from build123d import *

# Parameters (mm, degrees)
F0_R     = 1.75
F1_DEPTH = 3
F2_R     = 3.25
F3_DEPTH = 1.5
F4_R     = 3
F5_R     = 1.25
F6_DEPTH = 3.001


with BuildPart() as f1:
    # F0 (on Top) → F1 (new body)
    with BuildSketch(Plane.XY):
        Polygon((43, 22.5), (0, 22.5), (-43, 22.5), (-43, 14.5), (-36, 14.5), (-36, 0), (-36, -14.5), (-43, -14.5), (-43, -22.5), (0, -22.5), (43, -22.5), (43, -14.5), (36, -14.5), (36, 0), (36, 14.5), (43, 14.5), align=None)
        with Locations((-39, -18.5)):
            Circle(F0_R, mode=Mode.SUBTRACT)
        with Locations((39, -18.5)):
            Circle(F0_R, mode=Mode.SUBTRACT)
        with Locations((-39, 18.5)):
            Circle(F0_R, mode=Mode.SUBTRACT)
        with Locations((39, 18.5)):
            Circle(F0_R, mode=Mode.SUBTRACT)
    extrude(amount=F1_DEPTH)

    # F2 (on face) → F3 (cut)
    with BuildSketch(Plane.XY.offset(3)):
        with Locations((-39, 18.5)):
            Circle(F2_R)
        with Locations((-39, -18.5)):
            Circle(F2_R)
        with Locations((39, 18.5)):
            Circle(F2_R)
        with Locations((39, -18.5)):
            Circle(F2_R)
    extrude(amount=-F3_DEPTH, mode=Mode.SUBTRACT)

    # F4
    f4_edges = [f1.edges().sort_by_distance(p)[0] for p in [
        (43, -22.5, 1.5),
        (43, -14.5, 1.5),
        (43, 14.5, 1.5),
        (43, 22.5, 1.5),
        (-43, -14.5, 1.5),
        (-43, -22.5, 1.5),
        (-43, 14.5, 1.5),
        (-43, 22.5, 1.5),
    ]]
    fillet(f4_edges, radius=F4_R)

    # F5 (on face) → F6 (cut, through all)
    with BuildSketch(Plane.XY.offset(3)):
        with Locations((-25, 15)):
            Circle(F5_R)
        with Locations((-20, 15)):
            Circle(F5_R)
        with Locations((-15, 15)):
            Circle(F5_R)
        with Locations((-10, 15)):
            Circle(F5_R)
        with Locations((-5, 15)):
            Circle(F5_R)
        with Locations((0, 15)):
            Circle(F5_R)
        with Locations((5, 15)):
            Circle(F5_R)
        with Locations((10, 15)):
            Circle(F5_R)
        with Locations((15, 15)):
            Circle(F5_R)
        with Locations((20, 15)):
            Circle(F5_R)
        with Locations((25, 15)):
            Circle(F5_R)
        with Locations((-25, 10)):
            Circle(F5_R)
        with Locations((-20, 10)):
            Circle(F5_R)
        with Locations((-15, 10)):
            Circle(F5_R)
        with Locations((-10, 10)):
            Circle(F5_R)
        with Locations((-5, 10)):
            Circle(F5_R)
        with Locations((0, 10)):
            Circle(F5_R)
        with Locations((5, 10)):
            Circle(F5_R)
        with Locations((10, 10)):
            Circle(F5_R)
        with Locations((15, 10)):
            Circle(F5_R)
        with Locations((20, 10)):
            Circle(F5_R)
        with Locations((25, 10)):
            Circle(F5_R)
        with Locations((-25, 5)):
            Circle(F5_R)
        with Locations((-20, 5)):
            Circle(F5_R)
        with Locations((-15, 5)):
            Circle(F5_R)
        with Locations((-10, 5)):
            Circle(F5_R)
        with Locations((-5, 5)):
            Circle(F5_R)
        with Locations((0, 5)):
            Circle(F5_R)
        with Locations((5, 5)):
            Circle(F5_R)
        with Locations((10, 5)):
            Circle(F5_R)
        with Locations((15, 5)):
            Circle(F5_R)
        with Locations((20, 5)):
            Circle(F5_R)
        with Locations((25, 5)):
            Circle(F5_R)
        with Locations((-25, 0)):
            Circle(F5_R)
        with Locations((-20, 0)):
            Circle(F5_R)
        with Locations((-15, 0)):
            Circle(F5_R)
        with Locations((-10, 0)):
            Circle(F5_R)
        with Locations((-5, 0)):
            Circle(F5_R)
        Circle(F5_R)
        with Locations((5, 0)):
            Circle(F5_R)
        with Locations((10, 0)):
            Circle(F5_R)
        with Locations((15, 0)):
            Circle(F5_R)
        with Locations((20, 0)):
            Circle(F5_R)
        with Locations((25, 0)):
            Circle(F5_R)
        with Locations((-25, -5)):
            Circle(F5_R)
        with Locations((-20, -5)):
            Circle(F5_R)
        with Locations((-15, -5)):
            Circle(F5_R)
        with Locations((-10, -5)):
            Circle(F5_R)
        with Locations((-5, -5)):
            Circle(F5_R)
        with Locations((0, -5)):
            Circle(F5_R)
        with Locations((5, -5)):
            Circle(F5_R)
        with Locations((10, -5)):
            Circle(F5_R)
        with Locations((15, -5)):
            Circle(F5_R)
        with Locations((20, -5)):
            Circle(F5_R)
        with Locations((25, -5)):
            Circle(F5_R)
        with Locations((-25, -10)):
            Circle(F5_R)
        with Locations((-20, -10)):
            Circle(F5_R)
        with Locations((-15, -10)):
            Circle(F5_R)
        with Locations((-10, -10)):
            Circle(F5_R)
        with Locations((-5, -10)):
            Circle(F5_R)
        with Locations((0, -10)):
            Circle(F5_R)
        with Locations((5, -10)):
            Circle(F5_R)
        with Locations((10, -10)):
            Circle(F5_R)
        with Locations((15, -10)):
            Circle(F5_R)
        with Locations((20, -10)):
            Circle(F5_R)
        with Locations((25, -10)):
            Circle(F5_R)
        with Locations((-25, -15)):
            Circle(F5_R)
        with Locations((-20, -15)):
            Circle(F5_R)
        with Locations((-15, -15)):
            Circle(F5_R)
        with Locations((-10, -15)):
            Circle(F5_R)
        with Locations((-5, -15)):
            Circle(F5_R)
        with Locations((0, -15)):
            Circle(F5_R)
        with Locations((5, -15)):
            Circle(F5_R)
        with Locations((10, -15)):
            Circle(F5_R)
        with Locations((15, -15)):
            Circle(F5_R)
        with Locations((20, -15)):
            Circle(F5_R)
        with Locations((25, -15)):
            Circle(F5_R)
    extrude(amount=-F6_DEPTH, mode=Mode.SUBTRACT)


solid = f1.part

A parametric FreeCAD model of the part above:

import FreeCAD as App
import Part
import Sketcher


def edges_at(feature, points):
    """Names of the edges that pass closest to the given points."""
    edges = feature.Shape.Edges
    near = lambda p: min(range(len(edges)), key=lambda i: edges[i].distToShape(Part.Vertex(*p))[0])
    return sorted({f"Edge{near(p) + 1}" for p in points})


def add_polygon(sketch, points):
    """Adds a closed chain of lines whose ends are joined by coincident constraints."""
    first, n = sketch.GeometryCount, len(points)
    for a, b in zip(points, points[1:] + points[:1]):
        sketch.addGeometry(Part.LineSegment(App.Vector(*a, 0), App.Vector(*b, 0)), False)
    for i in range(n):
        sketch.addConstraint(Sketcher.Constraint("Coincident", first + i, 2, first + (i + 1) % n, 1))

doc = App.newDocument("Part")
params = doc.addObject("Spreadsheet::Sheet", "Params")
for row, (alias, value) in enumerate([
    ("sketch1_diameter", "3.5 mm"),
    ("sketch1_width", "86 mm"),
    ("sketch1_width2", "7 mm"),
    ("sketch1_height", "8 mm"),
    ("sketch1_height2", "29 mm"),
    ("pad1_length", "3 mm"),
    ("sketch2_diameter", "6.5 mm"),
    ("pocket1_length", "1.5 mm"),
    ("fillet_radius", "3 mm"),
    ("sketch3_diameter", "2.5 mm"),
], start=1):
    params.set(f"A{row}", alias)
    params.set(f"B{row}", "=" + value)
    params.setAlias(f"B{row}", alias)

body = doc.addObject("PartDesign::Body", "Body")

sketch1 = body.newObject("Sketcher::SketchObject", "Sketch")
sketch1.AttachmentSupport = (doc.getObject("XY_Plane"), [""])
sketch1.MapMode = "FlatFace"
add_polygon(sketch1, [(43, 22.5), (-43, 22.5), (-43, 14.5), (-36, 14.5), (-36, -14.5), (-43, -14.5), (-43, -22.5), (43, -22.5), (43, -14.5), (36, -14.5), (36, 14.5), (43, 14.5)])
sketch1.addGeometry(Part.Circle(App.Vector(-39, -18.5, 0), App.Vector(0, 0, 1), 1.75), False)
sketch1.addGeometry(Part.Circle(App.Vector(39, -18.5, 0), App.Vector(0, 0, 1), 1.75), False)
sketch1.addGeometry(Part.Circle(App.Vector(-39, 18.5, 0), App.Vector(0, 0, 1), 1.75), False)
sketch1.addGeometry(Part.Circle(App.Vector(39, 18.5, 0), App.Vector(0, 0, 1), 1.75), False)
sketch1.addConstraint(Sketcher.Constraint("Horizontal", 0))
sketch1.addConstraint(Sketcher.Constraint("Vertical", 1))
sketch1.addConstraint(Sketcher.Constraint("Horizontal", 2))
sketch1.addConstraint(Sketcher.Constraint("Vertical", 3))
sketch1.addConstraint(Sketcher.Constraint("Horizontal", 4))
sketch1.addConstraint(Sketcher.Constraint("Vertical", 5))
sketch1.addConstraint(Sketcher.Constraint("Horizontal", 6))
sketch1.addConstraint(Sketcher.Constraint("Vertical", 7))
sketch1.addConstraint(Sketcher.Constraint("Horizontal", 8))
sketch1.addConstraint(Sketcher.Constraint("Vertical", 9))
sketch1.addConstraint(Sketcher.Constraint("Horizontal", 10))
sketch1.addConstraint(Sketcher.Constraint("Vertical", 11))
sketch1.addConstraint(Sketcher.Constraint("Equal", 12, 13))
sketch1.addConstraint(Sketcher.Constraint("Equal", 13, 14))
sketch1.addConstraint(Sketcher.Constraint("Equal", 14, 15))
sketch1.addConstraint(Sketcher.Constraint("Symmetric", 13, 3, 14, 3, -1, 1))
sketch1.addConstraint(Sketcher.Constraint("Symmetric", 12, 3, 15, 3, -1, 1))
sketch1.addConstraint(Sketcher.Constraint("Symmetric", 0, 2, 6, 2, -1, 1))
sketch1.addConstraint(Sketcher.Constraint("Symmetric", 2, 2, 8, 2, -1, 1))
sketch1.addConstraint(Sketcher.Constraint("Symmetric", 4, 2, 10, 2, -1, 1))
sketch1.addConstraint(Sketcher.Constraint("Symmetric", 12, 3, 13, 3, -2))
sketch1.addConstraint(Sketcher.Constraint("Symmetric", 4, 2, 7, 2, -2))
sketch1.addConstraint(Sketcher.Constraint("Diameter", 12, 3.5))
sketch1.addConstraint(Sketcher.Constraint("DistanceX", 0, 2, 0, 1, 86.0))
sketch1.addConstraint(Sketcher.Constraint("DistanceX", 2, 1, 2, 2, 7.0))
sketch1.addConstraint(Sketcher.Constraint("DistanceY", 1, 2, 1, 1, 8.0))
sketch1.addConstraint(Sketcher.Constraint("DistanceY", 3, 2, 3, 1, 29.0))
sketch1.addConstraint(Sketcher.Constraint("DistanceX", 12, 3, -1, 1, 39.0))
sketch1.addConstraint(Sketcher.Constraint("DistanceY", 12, 3, 14, 3, 37.0))
sketch1.setExpression("Constraints[34]", "Params.sketch1_diameter")
sketch1.setExpression("Constraints[35]", "Params.sketch1_width")
sketch1.setExpression("Constraints[36]", "Params.sketch1_width2")
sketch1.setExpression("Constraints[37]", "Params.sketch1_height")
sketch1.setExpression("Constraints[38]", "Params.sketch1_height2")
pad1 = body.newObject("PartDesign::Pad", "Pad")
pad1.Profile = sketch1
pad1.setExpression("Length", "Params.pad1_length")

sketch2 = body.newObject("Sketcher::SketchObject", "Sketch001")
sketch2.AttachmentSupport = (doc.getObject("XY_Plane"), [""])
sketch2.MapMode = "FlatFace"
sketch2.AttachmentOffset = App.Placement(App.Vector(0, 0, 3), App.Rotation())
sketch2.addGeometry(Part.Circle(App.Vector(-39, 18.5, 0), App.Vector(0, 0, 1), 3.25), False)
sketch2.addGeometry(Part.Circle(App.Vector(-39, -18.5, 0), App.Vector(0, 0, 1), 3.25), False)
sketch2.addGeometry(Part.Circle(App.Vector(39, 18.5, 0), App.Vector(0, 0, 1), 3.25), False)
sketch2.addGeometry(Part.Circle(App.Vector(39, -18.5, 0), App.Vector(0, 0, 1), 3.25), False)
sketch2.addConstraint(Sketcher.Constraint("Equal", 0, 1))
sketch2.addConstraint(Sketcher.Constraint("Equal", 1, 2))
sketch2.addConstraint(Sketcher.Constraint("Equal", 2, 3))
sketch2.addConstraint(Sketcher.Constraint("Symmetric", 1, 3, 2, 3, -1, 1))
sketch2.addConstraint(Sketcher.Constraint("Symmetric", 0, 3, 3, 3, -1, 1))
sketch2.addConstraint(Sketcher.Constraint("Symmetric", 0, 3, 2, 3, -2))
sketch2.addConstraint(Sketcher.Constraint("Diameter", 0, 6.5))
sketch2.addConstraint(Sketcher.Constraint("DistanceX", 0, 3, -1, 1, 39.0))
sketch2.addConstraint(Sketcher.Constraint("DistanceY", 1, 3, 0, 3, 37.0))
sketch2.setExpression("Constraints[6]", "Params.sketch2_diameter")
pocket1 = body.newObject("PartDesign::Pocket", "Pocket")
pocket1.Profile = sketch2
pocket1.setExpression("Length", "Params.pocket1_length")
doc.recompute()

fillet = body.newObject("PartDesign::Fillet", "Fillet")
fillet.Base = (pocket1, edges_at(pocket1, [
    (43, -22.5, 1.5),
    (43, -14.5, 1.5),
    (43, 14.5, 1.5),
    (43, 22.5, 1.5),
    (-43, -14.5, 1.5),
    (-43, -22.5, 1.5),
    (-43, 14.5, 1.5),
    (-43, 22.5, 1.5),
]))
fillet.setExpression("Radius", "Params.fillet_radius")

sketch3 = body.newObject("Sketcher::SketchObject", "Sketch002")
sketch3.AttachmentSupport = (doc.getObject("XY_Plane"), [""])
sketch3.MapMode = "FlatFace"
sketch3.AttachmentOffset = App.Placement(App.Vector(0, 0, 3), App.Rotation())
sketch3.addGeometry(Part.Circle(App.Vector(-25, 15, 0), App.Vector(0, 0, 1), 1.25), False)
sketch3.addGeometry(Part.Circle(App.Vector(-20, 15, 0), App.Vector(0, 0, 1), 1.25), False)
sketch3.addGeometry(Part.Circle(App.Vector(-15, 15, 0), App.Vector(0, 0, 1), 1.25), False)
sketch3.addGeometry(Part.Circle(App.Vector(-10, 15, 0), App.Vector(0, 0, 1), 1.25), False)
sketch3.addGeometry(Part.Circle(App.Vector(-5, 15, 0), App.Vector(0, 0, 1), 1.25), False)
sketch3.addGeometry(Part.Circle(App.Vector(0, 15, 0), App.Vector(0, 0, 1), 1.25), False)
sketch3.addGeometry(Part.Circle(App.Vector(5, 15, 0), App.Vector(0, 0, 1), 1.25), False)
sketch3.addGeometry(Part.Circle(App.Vector(10, 15, 0), App.Vector(0, 0, 1), 1.25), False)
sketch3.addGeometry(Part.Circle(App.Vector(15, 15, 0), App.Vector(0, 0, 1), 1.25), False)
sketch3.addGeometry(Part.Circle(App.Vector(20, 15, 0), App.Vector(0, 0, 1), 1.25), False)
sketch3.addGeometry(Part.Circle(App.Vector(25, 15, 0), App.Vector(0, 0, 1), 1.25), False)
sketch3.addGeometry(Part.Circle(App.Vector(-25, 10, 0), App.Vector(0, 0, 1), 1.25), False)
sketch3.addGeometry(Part.Circle(App.Vector(-20, 10, 0), App.Vector(0, 0, 1), 1.25), False)
sketch3.addGeometry(Part.Circle(App.Vector(-15, 10, 0), App.Vector(0, 0, 1), 1.25), False)
sketch3.addGeometry(Part.Circle(App.Vector(-10, 10, 0), App.Vector(0, 0, 1), 1.25), False)
sketch3.addGeometry(Part.Circle(App.Vector(-5, 10, 0), App.Vector(0, 0, 1), 1.25), False)
sketch3.addGeometry(Part.Circle(App.Vector(0, 10, 0), App.Vector(0, 0, 1), 1.25), False)
sketch3.addGeometry(Part.Circle(App.Vector(5, 10, 0), App.Vector(0, 0, 1), 1.25), False)
sketch3.addGeometry(Part.Circle(App.Vector(10, 10, 0), App.Vector(0, 0, 1), 1.25), False)
sketch3.addGeometry(Part.Circle(App.Vector(15, 10, 0), App.Vector(0, 0, 1), 1.25), False)
sketch3.addGeometry(Part.Circle(App.Vector(20, 10, 0), App.Vector(0, 0, 1), 1.25), False)
sketch3.addGeometry(Part.Circle(App.Vector(25, 10, 0), App.Vector(0, 0, 1), 1.25), False)
sketch3.addGeometry(Part.Circle(App.Vector(-25, 5, 0), App.Vector(0, 0, 1), 1.25), False)
sketch3.addGeometry(Part.Circle(App.Vector(-20, 5, 0), App.Vector(0, 0, 1), 1.25), False)
sketch3.addGeometry(Part.Circle(App.Vector(-15, 5, 0), App.Vector(0, 0, 1), 1.25), False)
sketch3.addGeometry(Part.Circle(App.Vector(-10, 5, 0), App.Vector(0, 0, 1), 1.25), False)
sketch3.addGeometry(Part.Circle(App.Vector(-5, 5, 0), App.Vector(0, 0, 1), 1.25), False)
sketch3.addGeometry(Part.Circle(App.Vector(0, 5, 0), App.Vector(0, 0, 1), 1.25), False)
sketch3.addGeometry(Part.Circle(App.Vector(5, 5, 0), App.Vector(0, 0, 1), 1.25), False)
sketch3.addGeometry(Part.Circle(App.Vector(10, 5, 0), App.Vector(0, 0, 1), 1.25), False)
sketch3.addGeometry(Part.Circle(App.Vector(15, 5, 0), App.Vector(0, 0, 1), 1.25), False)
sketch3.addGeometry(Part.Circle(App.Vector(20, 5, 0), App.Vector(0, 0, 1), 1.25), False)
sketch3.addGeometry(Part.Circle(App.Vector(25, 5, 0), App.Vector(0, 0, 1), 1.25), False)
sketch3.addGeometry(Part.Circle(App.Vector(-25, 0, 0), App.Vector(0, 0, 1), 1.25), False)
sketch3.addGeometry(Part.Circle(App.Vector(-20, 0, 0), App.Vector(0, 0, 1), 1.25), False)
sketch3.addGeometry(Part.Circle(App.Vector(-15, 0, 0), App.Vector(0, 0, 1), 1.25), False)
sketch3.addGeometry(Part.Circle(App.Vector(-10, 0, 0), App.Vector(0, 0, 1), 1.25), False)
sketch3.addGeometry(Part.Circle(App.Vector(-5, 0, 0), App.Vector(0, 0, 1), 1.25), False)
sketch3.addGeometry(Part.Circle(App.Vector(0, 0, 0), App.Vector(0, 0, 1), 1.25), False)
sketch3.addGeometry(Part.Circle(App.Vector(5, 0, 0), App.Vector(0, 0, 1), 1.25), False)
sketch3.addGeometry(Part.Circle(App.Vector(10, 0, 0), App.Vector(0, 0, 1), 1.25), False)
sketch3.addGeometry(Part.Circle(App.Vector(15, 0, 0), App.Vector(0, 0, 1), 1.25), False)
sketch3.addGeometry(Part.Circle(App.Vector(20, 0, 0), App.Vector(0, 0, 1), 1.25), False)
sketch3.addGeometry(Part.Circle(App.Vector(25, 0, 0), App.Vector(0, 0, 1), 1.25), False)
sketch3.addGeometry(Part.Circle(App.Vector(-25, -5, 0), App.Vector(0, 0, 1), 1.25), False)
sketch3.addGeometry(Part.Circle(App.Vector(-20, -5, 0), App.Vector(0, 0, 1), 1.25), False)
sketch3.addGeometry(Part.Circle(App.Vector(-15, -5, 0), App.Vector(0, 0, 1), 1.25), False)
sketch3.addGeometry(Part.Circle(App.Vector(-10, -5, 0), App.Vector(0, 0, 1), 1.25), False)
sketch3.addGeometry(Part.Circle(App.Vector(-5, -5, 0), App.Vector(0, 0, 1), 1.25), False)
sketch3.addGeometry(Part.Circle(App.Vector(0, -5, 0), App.Vector(0, 0, 1), 1.25), False)
sketch3.addGeometry(Part.Circle(App.Vector(5, -5, 0), App.Vector(0, 0, 1), 1.25), False)
sketch3.addGeometry(Part.Circle(App.Vector(10, -5, 0), App.Vector(0, 0, 1), 1.25), False)
sketch3.addGeometry(Part.Circle(App.Vector(15, -5, 0), App.Vector(0, 0, 1), 1.25), False)
sketch3.addGeometry(Part.Circle(App.Vector(20, -5, 0), App.Vector(0, 0, 1), 1.25), False)
sketch3.addGeometry(Part.Circle(App.Vector(25, -5, 0), App.Vector(0, 0, 1), 1.25), False)
sketch3.addGeometry(Part.Circle(App.Vector(-25, -10, 0), App.Vector(0, 0, 1), 1.25), False)
sketch3.addGeometry(Part.Circle(App.Vector(-20, -10, 0), App.Vector(0, 0, 1), 1.25), False)
sketch3.addGeometry(Part.Circle(App.Vector(-15, -10, 0), App.Vector(0, 0, 1), 1.25), False)
sketch3.addGeometry(Part.Circle(App.Vector(-10, -10, 0), App.Vector(0, 0, 1), 1.25), False)
sketch3.addGeometry(Part.Circle(App.Vector(-5, -10, 0), App.Vector(0, 0, 1), 1.25), False)
sketch3.addGeometry(Part.Circle(App.Vector(0, -10, 0), App.Vector(0, 0, 1), 1.25), False)
sketch3.addGeometry(Part.Circle(App.Vector(5, -10, 0), App.Vector(0, 0, 1), 1.25), False)
sketch3.addGeometry(Part.Circle(App.Vector(10, -10, 0), App.Vector(0, 0, 1), 1.25), False)
sketch3.addGeometry(Part.Circle(App.Vector(15, -10, 0), App.Vector(0, 0, 1), 1.25), False)
sketch3.addGeometry(Part.Circle(App.Vector(20, -10, 0), App.Vector(0, 0, 1), 1.25), False)
sketch3.addGeometry(Part.Circle(App.Vector(25, -10, 0), App.Vector(0, 0, 1), 1.25), False)
sketch3.addGeometry(Part.Circle(App.Vector(-25, -15, 0), App.Vector(0, 0, 1), 1.25), False)
sketch3.addGeometry(Part.Circle(App.Vector(-20, -15, 0), App.Vector(0, 0, 1), 1.25), False)
sketch3.addGeometry(Part.Circle(App.Vector(-15, -15, 0), App.Vector(0, 0, 1), 1.25), False)
sketch3.addGeometry(Part.Circle(App.Vector(-10, -15, 0), App.Vector(0, 0, 1), 1.25), False)
sketch3.addGeometry(Part.Circle(App.Vector(-5, -15, 0), App.Vector(0, 0, 1), 1.25), False)
sketch3.addGeometry(Part.Circle(App.Vector(0, -15, 0), App.Vector(0, 0, 1), 1.25), False)
sketch3.addGeometry(Part.Circle(App.Vector(5, -15, 0), App.Vector(0, 0, 1), 1.25), False)
sketch3.addGeometry(Part.Circle(App.Vector(10, -15, 0), App.Vector(0, 0, 1), 1.25), False)
sketch3.addGeometry(Part.Circle(App.Vector(15, -15, 0), App.Vector(0, 0, 1), 1.25), False)
sketch3.addGeometry(Part.Circle(App.Vector(20, -15, 0), App.Vector(0, 0, 1), 1.25), False)
sketch3.addGeometry(Part.Circle(App.Vector(25, -15, 0), App.Vector(0, 0, 1), 1.25), False)
sketch3.addConstraint(Sketcher.Constraint("Coincident", 38, 3, -1, 1))
sketch3.addConstraint(Sketcher.Constraint("Equal", 0, 1))
sketch3.addConstraint(Sketcher.Constraint("Equal", 1, 2))
sketch3.addConstraint(Sketcher.Constraint("Equal", 2, 3))
sketch3.addConstraint(Sketcher.Constraint("Equal", 3, 4))
sketch3.addConstraint(Sketcher.Constraint("Equal", 4, 5))
sketch3.addConstraint(Sketcher.Constraint("Equal", 5, 6))
sketch3.addConstraint(Sketcher.Constraint("Equal", 6, 7))
sketch3.addConstraint(Sketcher.Constraint("Equal", 7, 8))
sketch3.addConstraint(Sketcher.Constraint("Equal", 8, 9))
sketch3.addConstraint(Sketcher.Constraint("Equal", 9, 10))
sketch3.addConstraint(Sketcher.Constraint("Equal", 10, 11))
sketch3.addConstraint(Sketcher.Constraint("Equal", 11, 12))
sketch3.addConstraint(Sketcher.Constraint("Equal", 12, 13))
sketch3.addConstraint(Sketcher.Constraint("Equal", 13, 14))
sketch3.addConstraint(Sketcher.Constraint("Equal", 14, 15))
sketch3.addConstraint(Sketcher.Constraint("Equal", 15, 16))
sketch3.addConstraint(Sketcher.Constraint("Equal", 16, 17))
sketch3.addConstraint(Sketcher.Constraint("Equal", 17, 18))
sketch3.addConstraint(Sketcher.Constraint("Equal", 18, 19))
sketch3.addConstraint(Sketcher.Constraint("Equal", 19, 20))
sketch3.addConstraint(Sketcher.Constraint("Equal", 20, 21))
sketch3.addConstraint(Sketcher.Constraint("Equal", 21, 22))
sketch3.addConstraint(Sketcher.Constraint("Equal", 22, 23))
sketch3.addConstraint(Sketcher.Constraint("Equal", 23, 24))
sketch3.addConstraint(Sketcher.Constraint("Equal", 24, 25))
sketch3.addConstraint(Sketcher.Constraint("Equal", 25, 26))
sketch3.addConstraint(Sketcher.Constraint("Equal", 26, 27))
sketch3.addConstraint(Sketcher.Constraint("Equal", 27, 28))
sketch3.addConstraint(Sketcher.Constraint("Equal", 28, 29))
sketch3.addConstraint(Sketcher.Constraint("Equal", 29, 30))
sketch3.addConstraint(Sketcher.Constraint("Equal", 30, 31))
sketch3.addConstraint(Sketcher.Constraint("Equal", 31, 32))
sketch3.addConstraint(Sketcher.Constraint("Equal", 32, 33))
sketch3.addConstraint(Sketcher.Constraint("Equal", 33, 34))
sketch3.addConstraint(Sketcher.Constraint("Equal", 34, 35))
sketch3.addConstraint(Sketcher.Constraint("Equal", 35, 36))
sketch3.addConstraint(Sketcher.Constraint("Equal", 36, 37))
sketch3.addConstraint(Sketcher.Constraint("Equal", 37, 38))
sketch3.addConstraint(Sketcher.Constraint("Equal", 38, 39))
sketch3.addConstraint(Sketcher.Constraint("Equal", 39, 40))
sketch3.addConstraint(Sketcher.Constraint("Equal", 40, 41))
sketch3.addConstraint(Sketcher.Constraint("Equal", 41, 42))
sketch3.addConstraint(Sketcher.Constraint("Equal", 42, 43))
sketch3.addConstraint(Sketcher.Constraint("Equal", 43, 44))
sketch3.addConstraint(Sketcher.Constraint("Equal", 44, 45))
sketch3.addConstraint(Sketcher.Constraint("Equal", 45, 46))
sketch3.addConstraint(Sketcher.Constraint("Equal", 46, 47))
sketch3.addConstraint(Sketcher.Constraint("Equal", 47, 48))
sketch3.addConstraint(Sketcher.Constraint("Equal", 48, 49))
sketch3.addConstraint(Sketcher.Constraint("Equal", 49, 50))
sketch3.addConstraint(Sketcher.Constraint("Equal", 50, 51))
sketch3.addConstraint(Sketcher.Constraint("Equal", 51, 52))
sketch3.addConstraint(Sketcher.Constraint("Equal", 52, 53))
sketch3.addConstraint(Sketcher.Constraint("Equal", 53, 54))
sketch3.addConstraint(Sketcher.Constraint("Equal", 54, 55))
sketch3.addConstraint(Sketcher.Constraint("Equal", 55, 56))
sketch3.addConstraint(Sketcher.Constraint("Equal", 56, 57))
sketch3.addConstraint(Sketcher.Constraint("Equal", 57, 58))
sketch3.addConstraint(Sketcher.Constraint("Equal", 58, 59))
sketch3.addConstraint(Sketcher.Constraint("Equal", 59, 60))
sketch3.addConstraint(Sketcher.Constraint("Equal", 60, 61))
sketch3.addConstraint(Sketcher.Constraint("Equal", 61, 62))
sketch3.addConstraint(Sketcher.Constraint("Equal", 62, 63))
sketch3.addConstraint(Sketcher.Constraint("Equal", 63, 64))
sketch3.addConstraint(Sketcher.Constraint("Equal", 64, 65))
sketch3.addConstraint(Sketcher.Constraint("Equal", 65, 66))
sketch3.addConstraint(Sketcher.Constraint("Equal", 66, 67))
sketch3.addConstraint(Sketcher.Constraint("Equal", 67, 68))
sketch3.addConstraint(Sketcher.Constraint("Equal", 68, 69))
sketch3.addConstraint(Sketcher.Constraint("Equal", 69, 70))
sketch3.addConstraint(Sketcher.Constraint("Equal", 70, 71))
sketch3.addConstraint(Sketcher.Constraint("Equal", 71, 72))
sketch3.addConstraint(Sketcher.Constraint("Equal", 72, 73))
sketch3.addConstraint(Sketcher.Constraint("Equal", 73, 74))
sketch3.addConstraint(Sketcher.Constraint("Equal", 74, 75))
sketch3.addConstraint(Sketcher.Constraint("Equal", 75, 76))
sketch3.addConstraint(Sketcher.Constraint("Symmetric", 37, 3, 39, 3, -1, 1))
sketch3.addConstraint(Sketcher.Constraint("Symmetric", 36, 3, 40, 3, -1, 1))
sketch3.addConstraint(Sketcher.Constraint("Symmetric", 35, 3, 41, 3, -1, 1))
sketch3.addConstraint(Sketcher.Constraint("Symmetric", 34, 3, 42, 3, -1, 1))
sketch3.addConstraint(Sketcher.Constraint("Symmetric", 33, 3, 43, 3, -1, 1))
sketch3.addConstraint(Sketcher.Constraint("Symmetric", 32, 3, 44, 3, -1, 1))
sketch3.addConstraint(Sketcher.Constraint("Symmetric", 31, 3, 45, 3, -1, 1))
sketch3.addConstraint(Sketcher.Constraint("Symmetric", 30, 3, 46, 3, -1, 1))
sketch3.addConstraint(Sketcher.Constraint("Symmetric", 29, 3, 47, 3, -1, 1))
sketch3.addConstraint(Sketcher.Constraint("Symmetric", 28, 3, 48, 3, -1, 1))
sketch3.addConstraint(Sketcher.Constraint("Symmetric", 27, 3, 49, 3, -1, 1))
sketch3.addConstraint(Sketcher.Constraint("Symmetric", 26, 3, 50, 3, -1, 1))
sketch3.addConstraint(Sketcher.Constraint("Symmetric", 25, 3, 51, 3, -1, 1))
sketch3.addConstraint(Sketcher.Constraint("Symmetric", 24, 3, 52, 3, -1, 1))
sketch3.addConstraint(Sketcher.Constraint("Symmetric", 23, 3, 53, 3, -1, 1))
sketch3.addConstraint(Sketcher.Constraint("Symmetric", 22, 3, 54, 3, -1, 1))
sketch3.addConstraint(Sketcher.Constraint("Symmetric", 21, 3, 55, 3, -1, 1))
sketch3.addConstraint(Sketcher.Constraint("Symmetric", 20, 3, 56, 3, -1, 1))
sketch3.addConstraint(Sketcher.Constraint("Symmetric", 19, 3, 57, 3, -1, 1))
sketch3.addConstraint(Sketcher.Constraint("Symmetric", 18, 3, 58, 3, -1, 1))
sketch3.addConstraint(Sketcher.Constraint("Symmetric", 17, 3, 59, 3, -1, 1))
sketch3.addConstraint(Sketcher.Constraint("Symmetric", 16, 3, 60, 3, -1, 1))
sketch3.addConstraint(Sketcher.Constraint("Symmetric", 15, 3, 61, 3, -1, 1))
sketch3.addConstraint(Sketcher.Constraint("Symmetric", 14, 3, 62, 3, -1, 1))
sketch3.addConstraint(Sketcher.Constraint("Symmetric", 13, 3, 63, 3, -1, 1))
sketch3.addConstraint(Sketcher.Constraint("Symmetric", 12, 3, 64, 3, -1, 1))
sketch3.addConstraint(Sketcher.Constraint("Symmetric", 11, 3, 65, 3, -1, 1))
sketch3.addConstraint(Sketcher.Constraint("Symmetric", 10, 3, 66, 3, -1, 1))
sketch3.addConstraint(Sketcher.Constraint("Symmetric", 9, 3, 67, 3, -1, 1))
sketch3.addConstraint(Sketcher.Constraint("Symmetric", 8, 3, 68, 3, -1, 1))
sketch3.addConstraint(Sketcher.Constraint("Symmetric", 7, 3, 69, 3, -1, 1))
sketch3.addConstraint(Sketcher.Constraint("Symmetric", 6, 3, 70, 3, -1, 1))
sketch3.addConstraint(Sketcher.Constraint("Symmetric", 5, 3, 71, 3, -1, 1))
sketch3.addConstraint(Sketcher.Constraint("Symmetric", 4, 3, 72, 3, -1, 1))
sketch3.addConstraint(Sketcher.Constraint("Symmetric", 3, 3, 73, 3, -1, 1))
sketch3.addConstraint(Sketcher.Constraint("Symmetric", 2, 3, 74, 3, -1, 1))
sketch3.addConstraint(Sketcher.Constraint("Symmetric", 1, 3, 75, 3, -1, 1))
sketch3.addConstraint(Sketcher.Constraint("Symmetric", 0, 3, 76, 3, -1, 1))
sketch3.addConstraint(Sketcher.Constraint("Symmetric", 4, 3, 6, 3, -2))
sketch3.addConstraint(Sketcher.Constraint("Symmetric", 3, 3, 7, 3, -2))
sketch3.addConstraint(Sketcher.Constraint("Symmetric", 2, 3, 8, 3, -2))
sketch3.addConstraint(Sketcher.Constraint("Symmetric", 1, 3, 9, 3, -2))
sketch3.addConstraint(Sketcher.Constraint("Symmetric", 0, 3, 10, 3, -2))
sketch3.addConstraint(Sketcher.Constraint("Symmetric", 15, 3, 17, 3, -2))
sketch3.addConstraint(Sketcher.Constraint("Symmetric", 14, 3, 18, 3, -2))
sketch3.addConstraint(Sketcher.Constraint("Symmetric", 13, 3, 19, 3, -2))
sketch3.addConstraint(Sketcher.Constraint("Symmetric", 12, 3, 20, 3, -2))
sketch3.addConstraint(Sketcher.Constraint("Symmetric", 11, 3, 21, 3, -2))
sketch3.addConstraint(Sketcher.Constraint("Symmetric", 26, 3, 28, 3, -2))
sketch3.addConstraint(Sketcher.Constraint("Symmetric", 25, 3, 29, 3, -2))
sketch3.addConstraint(Sketcher.Constraint("Symmetric", 24, 3, 30, 3, -2))
sketch3.addConstraint(Sketcher.Constraint("Symmetric", 23, 3, 31, 3, -2))
sketch3.addConstraint(Sketcher.Constraint("Symmetric", 22, 3, 32, 3, -2))
sketch3.addConstraint(Sketcher.Constraint("PointOnObject", 5, 3, -2))
sketch3.addConstraint(Sketcher.Constraint("PointOnObject", 16, 3, -2))
sketch3.addConstraint(Sketcher.Constraint("PointOnObject", 27, 3, -2))
sketch3.addConstraint(Sketcher.Constraint("PointOnObject", 33, 3, -1))
sketch3.addConstraint(Sketcher.Constraint("PointOnObject", 34, 3, -1))
sketch3.addConstraint(Sketcher.Constraint("PointOnObject", 35, 3, -1))
sketch3.addConstraint(Sketcher.Constraint("PointOnObject", 36, 3, -1))
sketch3.addConstraint(Sketcher.Constraint("PointOnObject", 37, 3, -1))
sketch3.addConstraint(Sketcher.Constraint("Horizontal", 0, 3, 1, 3))
sketch3.addConstraint(Sketcher.Constraint("Horizontal", 1, 3, 2, 3))
sketch3.addConstraint(Sketcher.Constraint("Horizontal", 2, 3, 3, 3))
sketch3.addConstraint(Sketcher.Constraint("Horizontal", 3, 3, 4, 3))
sketch3.addConstraint(Sketcher.Constraint("Horizontal", 4, 3, 5, 3))
sketch3.addConstraint(Sketcher.Constraint("Horizontal", 11, 3, 12, 3))
sketch3.addConstraint(Sketcher.Constraint("Horizontal", 12, 3, 13, 3))
sketch3.addConstraint(Sketcher.Constraint("Horizontal", 13, 3, 14, 3))
sketch3.addConstraint(Sketcher.Constraint("Horizontal", 14, 3, 15, 3))
sketch3.addConstraint(Sketcher.Constraint("Horizontal", 15, 3, 16, 3))
sketch3.addConstraint(Sketcher.Constraint("Horizontal", 22, 3, 23, 3))
sketch3.addConstraint(Sketcher.Constraint("Horizontal", 23, 3, 24, 3))
sketch3.addConstraint(Sketcher.Constraint("Horizontal", 24, 3, 25, 3))
sketch3.addConstraint(Sketcher.Constraint("Horizontal", 25, 3, 26, 3))
sketch3.addConstraint(Sketcher.Constraint("Horizontal", 26, 3, 27, 3))
sketch3.addConstraint(Sketcher.Constraint("Vertical", 0, 3, 11, 3))
sketch3.addConstraint(Sketcher.Constraint("Vertical", 1, 3, 12, 3))
sketch3.addConstraint(Sketcher.Constraint("Vertical", 2, 3, 13, 3))
sketch3.addConstraint(Sketcher.Constraint("Vertical", 3, 3, 14, 3))
sketch3.addConstraint(Sketcher.Constraint("Vertical", 4, 3, 15, 3))
sketch3.addConstraint(Sketcher.Constraint("Vertical", 11, 3, 22, 3))
sketch3.addConstraint(Sketcher.Constraint("Vertical", 12, 3, 23, 3))
sketch3.addConstraint(Sketcher.Constraint("Vertical", 13, 3, 24, 3))
sketch3.addConstraint(Sketcher.Constraint("Vertical", 14, 3, 25, 3))
sketch3.addConstraint(Sketcher.Constraint("Vertical", 15, 3, 26, 3))
sketch3.addConstraint(Sketcher.Constraint("Vertical", 22, 3, 33, 3))
sketch3.addConstraint(Sketcher.Constraint("Vertical", 23, 3, 34, 3))
sketch3.addConstraint(Sketcher.Constraint("Vertical", 24, 3, 35, 3))
sketch3.addConstraint(Sketcher.Constraint("Vertical", 25, 3, 36, 3))
sketch3.addConstraint(Sketcher.Constraint("Vertical", 26, 3, 37, 3))
sketch3.addConstraint(Sketcher.Constraint("Diameter", 0, 2.5))
sketch3.addConstraint(Sketcher.Constraint("DistanceX", 0, 3, -1, 1, 25.0))
sketch3.addConstraint(Sketcher.Constraint("DistanceY", -1, 1, 0, 3, 15.0))
sketch3.addConstraint(Sketcher.Constraint("DistanceX", 1, 3, -1, 1, 20.0))
sketch3.addConstraint(Sketcher.Constraint("DistanceX", 2, 3, -1, 1, 15.0))
sketch3.addConstraint(Sketcher.Constraint("DistanceX", 3, 3, -1, 1, 10.0))
sketch3.addConstraint(Sketcher.Constraint("DistanceX", 4, 3, -1, 1, 5.0))
sketch3.addConstraint(Sketcher.Constraint("DistanceY", -1, 1, 11, 3, 10.0))
sketch3.addConstraint(Sketcher.Constraint("DistanceY", -1, 1, 22, 3, 5.0))
sketch3.setExpression("Constraints[168]", "Params.sketch3_diameter")
pocket2 = body.newObject("PartDesign::Pocket", "Pocket001")
pocket2.Profile = sketch3
pocket2.Type = "ThroughAll"

doc.recompute()
